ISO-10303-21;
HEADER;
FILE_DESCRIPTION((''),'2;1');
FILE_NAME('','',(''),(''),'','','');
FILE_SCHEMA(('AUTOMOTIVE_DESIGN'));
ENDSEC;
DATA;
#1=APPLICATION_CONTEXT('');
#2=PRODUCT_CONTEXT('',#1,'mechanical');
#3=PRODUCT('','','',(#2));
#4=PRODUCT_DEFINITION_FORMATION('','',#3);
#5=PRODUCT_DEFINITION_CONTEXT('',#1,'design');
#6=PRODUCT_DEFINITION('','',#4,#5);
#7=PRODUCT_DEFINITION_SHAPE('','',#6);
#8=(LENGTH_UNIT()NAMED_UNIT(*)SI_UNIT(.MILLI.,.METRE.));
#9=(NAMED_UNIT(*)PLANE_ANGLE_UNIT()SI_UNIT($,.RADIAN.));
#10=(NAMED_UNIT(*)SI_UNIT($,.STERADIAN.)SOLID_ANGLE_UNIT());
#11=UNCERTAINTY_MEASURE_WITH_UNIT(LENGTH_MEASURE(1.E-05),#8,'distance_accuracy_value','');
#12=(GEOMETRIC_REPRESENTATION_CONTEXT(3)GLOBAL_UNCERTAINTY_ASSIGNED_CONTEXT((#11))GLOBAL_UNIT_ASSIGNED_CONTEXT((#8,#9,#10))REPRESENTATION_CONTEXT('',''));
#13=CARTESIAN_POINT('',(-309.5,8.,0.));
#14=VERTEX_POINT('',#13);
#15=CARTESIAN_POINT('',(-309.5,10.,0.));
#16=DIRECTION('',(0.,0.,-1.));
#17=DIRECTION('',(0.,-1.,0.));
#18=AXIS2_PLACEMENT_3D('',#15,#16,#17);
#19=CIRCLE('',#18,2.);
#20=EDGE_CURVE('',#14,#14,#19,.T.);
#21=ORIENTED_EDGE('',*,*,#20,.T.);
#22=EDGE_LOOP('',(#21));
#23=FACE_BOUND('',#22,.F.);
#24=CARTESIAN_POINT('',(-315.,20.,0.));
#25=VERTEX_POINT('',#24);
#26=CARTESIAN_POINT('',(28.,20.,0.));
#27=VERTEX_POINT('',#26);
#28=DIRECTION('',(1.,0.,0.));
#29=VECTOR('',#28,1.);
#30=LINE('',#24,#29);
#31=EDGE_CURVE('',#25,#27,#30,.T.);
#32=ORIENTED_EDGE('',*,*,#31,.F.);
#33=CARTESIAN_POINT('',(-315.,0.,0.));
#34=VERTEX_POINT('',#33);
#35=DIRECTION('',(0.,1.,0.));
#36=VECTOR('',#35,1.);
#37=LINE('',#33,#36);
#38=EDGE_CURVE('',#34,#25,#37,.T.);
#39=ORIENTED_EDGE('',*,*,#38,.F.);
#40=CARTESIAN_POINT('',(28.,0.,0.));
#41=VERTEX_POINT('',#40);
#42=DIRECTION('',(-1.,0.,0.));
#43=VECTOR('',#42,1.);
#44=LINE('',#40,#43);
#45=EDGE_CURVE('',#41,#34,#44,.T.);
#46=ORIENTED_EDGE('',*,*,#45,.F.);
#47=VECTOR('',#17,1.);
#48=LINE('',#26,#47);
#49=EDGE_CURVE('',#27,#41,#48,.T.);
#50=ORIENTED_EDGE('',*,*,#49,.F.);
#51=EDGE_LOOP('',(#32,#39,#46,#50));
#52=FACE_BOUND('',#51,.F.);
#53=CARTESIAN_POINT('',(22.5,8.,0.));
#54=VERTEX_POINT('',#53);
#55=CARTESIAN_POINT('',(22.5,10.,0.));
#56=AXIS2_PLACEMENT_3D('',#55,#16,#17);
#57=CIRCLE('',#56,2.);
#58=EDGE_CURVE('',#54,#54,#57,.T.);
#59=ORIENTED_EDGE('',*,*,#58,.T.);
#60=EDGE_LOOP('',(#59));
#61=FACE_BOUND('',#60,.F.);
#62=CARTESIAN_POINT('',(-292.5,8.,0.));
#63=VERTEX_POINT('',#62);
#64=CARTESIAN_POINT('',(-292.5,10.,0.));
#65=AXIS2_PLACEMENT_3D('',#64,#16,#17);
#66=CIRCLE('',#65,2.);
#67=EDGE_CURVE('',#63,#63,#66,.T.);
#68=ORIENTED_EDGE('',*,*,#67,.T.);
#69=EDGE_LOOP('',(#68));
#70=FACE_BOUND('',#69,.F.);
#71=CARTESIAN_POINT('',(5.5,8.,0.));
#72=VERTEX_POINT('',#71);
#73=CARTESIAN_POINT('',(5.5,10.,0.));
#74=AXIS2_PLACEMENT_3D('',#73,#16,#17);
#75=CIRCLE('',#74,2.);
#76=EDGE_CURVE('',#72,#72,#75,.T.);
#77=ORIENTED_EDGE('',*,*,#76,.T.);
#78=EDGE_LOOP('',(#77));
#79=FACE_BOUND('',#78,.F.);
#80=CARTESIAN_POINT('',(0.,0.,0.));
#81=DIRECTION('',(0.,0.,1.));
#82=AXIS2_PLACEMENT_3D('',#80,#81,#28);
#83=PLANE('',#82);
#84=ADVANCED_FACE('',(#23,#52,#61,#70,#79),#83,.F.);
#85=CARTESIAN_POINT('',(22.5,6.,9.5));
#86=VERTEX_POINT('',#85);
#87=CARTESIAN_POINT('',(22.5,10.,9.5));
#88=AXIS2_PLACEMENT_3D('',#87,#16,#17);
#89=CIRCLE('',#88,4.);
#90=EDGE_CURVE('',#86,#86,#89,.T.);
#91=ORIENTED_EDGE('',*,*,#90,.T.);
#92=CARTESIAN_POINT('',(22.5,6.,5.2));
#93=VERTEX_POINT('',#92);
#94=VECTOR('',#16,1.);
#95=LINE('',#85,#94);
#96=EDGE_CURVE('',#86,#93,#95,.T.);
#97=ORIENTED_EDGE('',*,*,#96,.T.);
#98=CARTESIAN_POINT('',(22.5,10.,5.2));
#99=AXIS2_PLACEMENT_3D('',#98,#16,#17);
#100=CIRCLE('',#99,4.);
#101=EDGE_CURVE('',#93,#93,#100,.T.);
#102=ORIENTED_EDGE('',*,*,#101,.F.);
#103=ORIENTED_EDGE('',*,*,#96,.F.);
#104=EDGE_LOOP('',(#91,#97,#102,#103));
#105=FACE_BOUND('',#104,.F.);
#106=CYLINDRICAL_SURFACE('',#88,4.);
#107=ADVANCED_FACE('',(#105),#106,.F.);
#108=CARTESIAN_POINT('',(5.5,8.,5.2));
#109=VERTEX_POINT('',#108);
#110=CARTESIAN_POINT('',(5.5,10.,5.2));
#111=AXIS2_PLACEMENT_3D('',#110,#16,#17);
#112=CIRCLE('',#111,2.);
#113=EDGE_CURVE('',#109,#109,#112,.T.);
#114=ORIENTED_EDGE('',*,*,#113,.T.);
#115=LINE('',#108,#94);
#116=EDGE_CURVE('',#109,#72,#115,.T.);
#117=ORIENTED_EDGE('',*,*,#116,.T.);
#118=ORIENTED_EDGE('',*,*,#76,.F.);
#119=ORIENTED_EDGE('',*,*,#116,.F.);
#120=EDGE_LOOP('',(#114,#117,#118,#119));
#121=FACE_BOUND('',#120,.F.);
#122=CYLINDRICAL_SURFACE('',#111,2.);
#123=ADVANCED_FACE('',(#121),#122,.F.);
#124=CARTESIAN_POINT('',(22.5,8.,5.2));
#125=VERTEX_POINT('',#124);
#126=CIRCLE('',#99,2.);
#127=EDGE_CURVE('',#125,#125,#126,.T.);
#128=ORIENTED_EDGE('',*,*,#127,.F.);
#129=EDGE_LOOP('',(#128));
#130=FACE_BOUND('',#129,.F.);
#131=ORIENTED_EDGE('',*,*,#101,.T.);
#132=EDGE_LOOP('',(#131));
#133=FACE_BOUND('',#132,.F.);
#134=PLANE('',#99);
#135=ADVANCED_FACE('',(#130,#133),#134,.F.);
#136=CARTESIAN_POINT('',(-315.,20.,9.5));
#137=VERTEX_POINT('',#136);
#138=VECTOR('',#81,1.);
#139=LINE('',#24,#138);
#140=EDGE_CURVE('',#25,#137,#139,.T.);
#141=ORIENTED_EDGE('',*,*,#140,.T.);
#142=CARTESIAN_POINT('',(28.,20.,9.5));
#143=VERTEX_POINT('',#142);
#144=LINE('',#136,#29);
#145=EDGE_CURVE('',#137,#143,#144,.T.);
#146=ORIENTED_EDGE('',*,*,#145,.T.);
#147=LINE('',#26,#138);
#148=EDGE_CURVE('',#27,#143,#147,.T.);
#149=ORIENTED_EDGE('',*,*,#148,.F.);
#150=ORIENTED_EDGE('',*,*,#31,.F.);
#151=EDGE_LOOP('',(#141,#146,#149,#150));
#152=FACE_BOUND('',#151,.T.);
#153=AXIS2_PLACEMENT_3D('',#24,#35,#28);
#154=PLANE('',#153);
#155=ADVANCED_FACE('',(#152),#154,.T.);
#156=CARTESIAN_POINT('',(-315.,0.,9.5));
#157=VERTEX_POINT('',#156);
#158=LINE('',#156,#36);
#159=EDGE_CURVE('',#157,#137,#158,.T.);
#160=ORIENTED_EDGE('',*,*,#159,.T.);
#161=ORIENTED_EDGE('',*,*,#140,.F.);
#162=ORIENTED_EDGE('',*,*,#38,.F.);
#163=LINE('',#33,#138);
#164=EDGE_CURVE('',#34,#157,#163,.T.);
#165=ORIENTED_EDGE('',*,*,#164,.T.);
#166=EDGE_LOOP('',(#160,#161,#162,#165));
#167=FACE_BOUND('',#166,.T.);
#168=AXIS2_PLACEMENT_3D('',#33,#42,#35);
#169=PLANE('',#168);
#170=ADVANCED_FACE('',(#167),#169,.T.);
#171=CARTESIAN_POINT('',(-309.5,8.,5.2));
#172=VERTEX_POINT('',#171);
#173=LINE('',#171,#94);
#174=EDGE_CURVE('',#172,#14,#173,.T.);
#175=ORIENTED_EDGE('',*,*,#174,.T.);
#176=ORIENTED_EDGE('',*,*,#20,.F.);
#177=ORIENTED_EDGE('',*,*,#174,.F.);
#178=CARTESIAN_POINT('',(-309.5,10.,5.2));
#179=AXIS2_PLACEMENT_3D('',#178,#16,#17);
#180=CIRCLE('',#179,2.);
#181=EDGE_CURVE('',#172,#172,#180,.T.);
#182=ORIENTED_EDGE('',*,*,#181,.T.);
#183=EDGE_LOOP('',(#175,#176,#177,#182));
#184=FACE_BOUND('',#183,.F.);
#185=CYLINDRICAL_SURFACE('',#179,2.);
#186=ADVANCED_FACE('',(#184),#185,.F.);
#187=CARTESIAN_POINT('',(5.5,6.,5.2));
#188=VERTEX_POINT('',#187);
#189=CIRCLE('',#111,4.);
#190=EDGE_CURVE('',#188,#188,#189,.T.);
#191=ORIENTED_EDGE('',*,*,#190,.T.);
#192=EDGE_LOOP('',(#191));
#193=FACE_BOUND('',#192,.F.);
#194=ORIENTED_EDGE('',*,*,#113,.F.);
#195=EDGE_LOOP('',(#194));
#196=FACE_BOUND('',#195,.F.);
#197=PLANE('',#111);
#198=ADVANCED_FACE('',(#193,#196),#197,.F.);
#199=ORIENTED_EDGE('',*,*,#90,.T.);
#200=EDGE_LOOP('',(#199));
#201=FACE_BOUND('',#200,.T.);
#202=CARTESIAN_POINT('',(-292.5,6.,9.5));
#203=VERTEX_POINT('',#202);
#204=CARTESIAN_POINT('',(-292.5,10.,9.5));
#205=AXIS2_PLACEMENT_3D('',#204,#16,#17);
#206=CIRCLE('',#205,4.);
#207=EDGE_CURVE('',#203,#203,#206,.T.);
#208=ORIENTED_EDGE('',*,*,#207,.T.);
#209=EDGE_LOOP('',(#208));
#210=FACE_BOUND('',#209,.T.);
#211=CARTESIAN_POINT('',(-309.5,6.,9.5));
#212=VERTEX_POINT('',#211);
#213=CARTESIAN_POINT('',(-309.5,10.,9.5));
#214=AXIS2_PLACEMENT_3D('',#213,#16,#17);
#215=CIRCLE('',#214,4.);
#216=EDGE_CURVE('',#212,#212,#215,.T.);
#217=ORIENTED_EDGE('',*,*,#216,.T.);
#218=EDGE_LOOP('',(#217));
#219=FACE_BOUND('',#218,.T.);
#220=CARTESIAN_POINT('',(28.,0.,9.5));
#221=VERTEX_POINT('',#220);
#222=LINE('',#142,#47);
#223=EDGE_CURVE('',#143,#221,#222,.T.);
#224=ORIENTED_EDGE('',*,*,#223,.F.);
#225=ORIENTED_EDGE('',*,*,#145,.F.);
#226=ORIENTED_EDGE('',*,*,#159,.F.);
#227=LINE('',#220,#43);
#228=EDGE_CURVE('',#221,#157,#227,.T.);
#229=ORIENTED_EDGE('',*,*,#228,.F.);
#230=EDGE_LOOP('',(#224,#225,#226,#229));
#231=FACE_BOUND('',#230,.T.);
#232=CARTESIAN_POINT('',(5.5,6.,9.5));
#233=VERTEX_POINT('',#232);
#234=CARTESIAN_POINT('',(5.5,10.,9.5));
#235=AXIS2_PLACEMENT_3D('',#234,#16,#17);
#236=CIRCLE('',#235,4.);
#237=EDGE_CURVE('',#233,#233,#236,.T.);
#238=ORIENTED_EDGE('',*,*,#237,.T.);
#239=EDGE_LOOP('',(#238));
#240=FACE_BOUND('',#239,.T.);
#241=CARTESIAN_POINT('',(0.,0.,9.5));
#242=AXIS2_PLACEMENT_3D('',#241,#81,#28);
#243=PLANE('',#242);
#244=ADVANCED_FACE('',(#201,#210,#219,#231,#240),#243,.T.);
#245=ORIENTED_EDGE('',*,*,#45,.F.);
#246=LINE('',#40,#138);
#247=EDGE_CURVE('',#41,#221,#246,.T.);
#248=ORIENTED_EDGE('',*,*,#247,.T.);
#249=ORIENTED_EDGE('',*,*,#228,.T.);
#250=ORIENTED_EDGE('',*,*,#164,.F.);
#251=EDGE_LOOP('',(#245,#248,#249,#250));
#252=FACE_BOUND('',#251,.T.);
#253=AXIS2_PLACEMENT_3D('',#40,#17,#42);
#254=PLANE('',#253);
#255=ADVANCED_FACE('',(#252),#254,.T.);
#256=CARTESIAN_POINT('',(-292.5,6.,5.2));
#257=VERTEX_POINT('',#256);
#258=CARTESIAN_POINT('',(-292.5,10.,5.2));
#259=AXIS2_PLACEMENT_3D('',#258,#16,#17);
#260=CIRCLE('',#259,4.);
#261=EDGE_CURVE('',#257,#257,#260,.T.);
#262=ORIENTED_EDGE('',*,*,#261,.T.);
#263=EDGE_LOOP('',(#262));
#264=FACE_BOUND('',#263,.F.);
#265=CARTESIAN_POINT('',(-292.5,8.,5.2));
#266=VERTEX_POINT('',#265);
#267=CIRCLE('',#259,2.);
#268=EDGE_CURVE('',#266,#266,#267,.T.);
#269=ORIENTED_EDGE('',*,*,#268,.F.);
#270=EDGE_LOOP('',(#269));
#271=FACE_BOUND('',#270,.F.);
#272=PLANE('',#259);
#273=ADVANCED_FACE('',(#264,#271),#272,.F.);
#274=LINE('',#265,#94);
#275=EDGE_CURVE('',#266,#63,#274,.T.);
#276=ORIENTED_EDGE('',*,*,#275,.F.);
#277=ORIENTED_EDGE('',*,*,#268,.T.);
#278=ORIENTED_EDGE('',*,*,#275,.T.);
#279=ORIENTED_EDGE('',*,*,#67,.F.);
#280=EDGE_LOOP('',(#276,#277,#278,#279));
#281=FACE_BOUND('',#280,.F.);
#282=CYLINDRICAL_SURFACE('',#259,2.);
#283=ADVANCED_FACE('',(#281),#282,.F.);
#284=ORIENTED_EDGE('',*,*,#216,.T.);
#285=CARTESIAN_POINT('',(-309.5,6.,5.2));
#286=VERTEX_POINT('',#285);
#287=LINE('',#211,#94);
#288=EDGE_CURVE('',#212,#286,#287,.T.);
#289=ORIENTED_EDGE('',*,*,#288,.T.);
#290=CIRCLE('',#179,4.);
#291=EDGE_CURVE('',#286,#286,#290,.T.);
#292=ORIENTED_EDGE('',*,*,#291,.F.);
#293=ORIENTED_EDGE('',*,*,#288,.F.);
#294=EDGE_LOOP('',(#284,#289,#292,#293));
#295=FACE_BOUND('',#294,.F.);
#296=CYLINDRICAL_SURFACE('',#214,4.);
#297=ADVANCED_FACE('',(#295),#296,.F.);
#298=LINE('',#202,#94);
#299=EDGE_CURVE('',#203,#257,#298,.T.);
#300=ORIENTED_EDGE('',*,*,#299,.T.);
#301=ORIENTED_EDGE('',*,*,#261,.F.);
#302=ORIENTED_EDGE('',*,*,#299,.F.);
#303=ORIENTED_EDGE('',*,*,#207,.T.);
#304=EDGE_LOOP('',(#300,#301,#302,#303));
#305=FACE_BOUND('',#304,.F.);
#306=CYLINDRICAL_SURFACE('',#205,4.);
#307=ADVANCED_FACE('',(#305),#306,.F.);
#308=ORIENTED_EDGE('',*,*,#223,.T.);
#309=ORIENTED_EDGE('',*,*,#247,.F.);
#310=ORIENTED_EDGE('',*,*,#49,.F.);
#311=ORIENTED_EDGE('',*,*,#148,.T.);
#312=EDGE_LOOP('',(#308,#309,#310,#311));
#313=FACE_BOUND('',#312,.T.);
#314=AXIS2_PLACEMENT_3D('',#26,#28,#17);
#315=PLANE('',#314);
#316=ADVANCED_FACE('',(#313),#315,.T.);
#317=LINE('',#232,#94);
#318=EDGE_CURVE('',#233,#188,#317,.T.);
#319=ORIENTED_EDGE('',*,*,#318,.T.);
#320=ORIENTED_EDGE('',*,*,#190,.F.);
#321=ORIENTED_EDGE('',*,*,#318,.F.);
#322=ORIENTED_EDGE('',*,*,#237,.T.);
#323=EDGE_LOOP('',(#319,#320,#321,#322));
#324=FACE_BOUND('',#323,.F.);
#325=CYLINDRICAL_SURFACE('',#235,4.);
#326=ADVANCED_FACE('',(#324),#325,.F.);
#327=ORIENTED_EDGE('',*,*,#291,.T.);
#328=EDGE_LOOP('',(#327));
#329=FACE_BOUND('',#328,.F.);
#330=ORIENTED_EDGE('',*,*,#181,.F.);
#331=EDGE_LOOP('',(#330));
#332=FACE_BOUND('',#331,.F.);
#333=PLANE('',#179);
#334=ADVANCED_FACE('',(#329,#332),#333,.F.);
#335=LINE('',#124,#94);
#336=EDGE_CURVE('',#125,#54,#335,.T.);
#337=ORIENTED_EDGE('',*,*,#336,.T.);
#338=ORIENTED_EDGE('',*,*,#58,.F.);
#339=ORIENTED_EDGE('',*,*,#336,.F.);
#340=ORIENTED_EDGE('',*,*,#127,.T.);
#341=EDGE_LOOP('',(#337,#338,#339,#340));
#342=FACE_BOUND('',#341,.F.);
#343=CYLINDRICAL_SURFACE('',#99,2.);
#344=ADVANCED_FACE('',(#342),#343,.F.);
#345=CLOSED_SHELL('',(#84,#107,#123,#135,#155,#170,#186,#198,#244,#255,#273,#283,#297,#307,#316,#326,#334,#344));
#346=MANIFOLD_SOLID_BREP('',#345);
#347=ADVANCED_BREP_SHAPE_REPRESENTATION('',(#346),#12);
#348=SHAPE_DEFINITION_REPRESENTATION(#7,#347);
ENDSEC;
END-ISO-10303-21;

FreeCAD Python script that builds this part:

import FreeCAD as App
import Part
import Sketcher

V = App.Vector
Q = App.Units.Quantity

doc = App.newDocument("Part")
params = doc.addObject("Spreadsheet::Sheet", "Params")
for row, (alias, value) in enumerate([
    ("sketch1_width", "343 mm"),
    ("sketch1_height", "20 mm"),
    ("pad1_length", "9.5 mm"),
    ("sketch2_diameter", "4 mm"),
    ("hole_diameter", "4 mm"),
    ("hole_cbore_diameter", "8 mm"),
    ("hole_cbore_depth", "4.3 mm"),
], start=1):
    params.set(f"A{row}", alias)
    params.set(f"B{row}", "=" + value)
    params.setAlias(f"B{row}", alias)

body = doc.addObject("PartDesign::Body", "Body")

# Sketch on XY plane
sketch1 = doc.addObject("Sketcher::SketchObject", "Sketch")
body.addObject(sketch1)
sketch1.AttachmentSupport = (doc.XY_Plane, [""])
sketch1.MapMode = "FlatFace"
sketch1.addGeometry([
    Part.LineSegment(V(-315, 0, 0), V(28, 0, 0)),
    Part.LineSegment(V(28, 0, 0), V(28, 20, 0)),
    Part.LineSegment(V(28, 20, 0), V(-315, 20, 0)),
    Part.LineSegment(V(-315, 20, 0), V(-315, 0, 0)),
], False)
sketch1.addConstraint([
    Sketcher.Constraint("Coincident", 0, 2, 1, 1),
    Sketcher.Constraint("Coincident", 1, 2, 2, 1),
    Sketcher.Constraint("Coincident", 2, 2, 3, 1),
    Sketcher.Constraint("Coincident", 3, 2, 0, 1),
    Sketcher.Constraint("Horizontal", 0),
    Sketcher.Constraint("Vertical", 1),
    Sketcher.Constraint("Horizontal", 2),
    Sketcher.Constraint("Vertical", 3),
    Sketcher.Constraint("PointOnObject", 0, 2, -1),
    Sketcher.Constraint("DistanceX", 0, 1, 0, 2, Q("343 mm")),
    Sketcher.Constraint("DistanceY", 1, 1, 1, 2, Q("20 mm")),
    Sketcher.Constraint("DistanceX", -1, 1, 0, 2, Q("28 mm")),
])
sketch1.setExpression("Constraints[9]", "Params.sketch1_width")
sketch1.setExpression("Constraints[10]", "Params.sketch1_height")
pad1 = doc.addObject("PartDesign::Pad", "Pad")
body.addObject(pad1)
pad1.Profile = sketch1
pad1.setExpression("Length", "Params.pad1_length")

# Sketch on XY plane
sketch2 = doc.addObject("Sketcher::SketchObject", "Sketch001")
body.addObject(sketch2)
sketch2.AttachmentSupport = (doc.XY_Plane, [""])
sketch2.MapMode = "FlatFace"
sketch2.AttachmentOffset = App.Placement(V(0, 0, 9.5), App.Rotation())
sketch2.addGeometry([
    Part.Circle(V(22.5, 10, 0), V(0, 0, 1), 2),
    Part.Circle(V(5.5, 10, 0), V(0, 0, 1), 2),
    Part.Circle(V(-309.5, 10, 0), V(0, 0, 1), 2),
    Part.Circle(V(-292.5, 10, 0), V(0, 0, 1), 2),
], False)
sketch2.addConstraint([
    Sketcher.Constraint("Equal", 0, 1),
    Sketcher.Constraint("Equal", 1, 2),
    Sketcher.Constraint("Equal", 2, 3),
    Sketcher.Constraint("Horizontal", 0, 3, 1, 3),
    Sketcher.Constraint("Horizontal", 1, 3, 2, 3),
    Sketcher.Constraint("Horizontal", 2, 3, 3, 3),
    Sketcher.Constraint("Diameter", 0, Q("4 mm")),
    Sketcher.Constraint("DistanceY", -1, 1, 0, 3, Q("10 mm")),
    Sketcher.Constraint("DistanceX", 1, 3, 0, 3, Q("17 mm")),
    Sketcher.Constraint("DistanceX", 2, 3, 1, 3, Q("315 mm")),
    Sketcher.Constraint("DistanceX", 2, 3, 3, 3, Q("17 mm")),
    Sketcher.Constraint("DistanceX", -1, 1, 0, 3, Q("22.5 mm")),
])
sketch2.setExpression("Constraints[6]", "Params.sketch2_diameter")
doc.recompute()
hole = doc.addObject("PartDesign::Hole", "Hole")
body.addObject(hole)
hole.Profile = sketch2
hole.ThreadType = "None"
hole.setExpression("Diameter", "Params.hole_diameter")
hole.DepthType = "ThroughAll"
hole.HoleCutType = "Counterbore"
hole.setExpression("HoleCutDiameter", "Params.hole_cbore_diameter")
hole.setExpression("HoleCutDepth", "Params.hole_cbore_depth")

doc.recompute()
